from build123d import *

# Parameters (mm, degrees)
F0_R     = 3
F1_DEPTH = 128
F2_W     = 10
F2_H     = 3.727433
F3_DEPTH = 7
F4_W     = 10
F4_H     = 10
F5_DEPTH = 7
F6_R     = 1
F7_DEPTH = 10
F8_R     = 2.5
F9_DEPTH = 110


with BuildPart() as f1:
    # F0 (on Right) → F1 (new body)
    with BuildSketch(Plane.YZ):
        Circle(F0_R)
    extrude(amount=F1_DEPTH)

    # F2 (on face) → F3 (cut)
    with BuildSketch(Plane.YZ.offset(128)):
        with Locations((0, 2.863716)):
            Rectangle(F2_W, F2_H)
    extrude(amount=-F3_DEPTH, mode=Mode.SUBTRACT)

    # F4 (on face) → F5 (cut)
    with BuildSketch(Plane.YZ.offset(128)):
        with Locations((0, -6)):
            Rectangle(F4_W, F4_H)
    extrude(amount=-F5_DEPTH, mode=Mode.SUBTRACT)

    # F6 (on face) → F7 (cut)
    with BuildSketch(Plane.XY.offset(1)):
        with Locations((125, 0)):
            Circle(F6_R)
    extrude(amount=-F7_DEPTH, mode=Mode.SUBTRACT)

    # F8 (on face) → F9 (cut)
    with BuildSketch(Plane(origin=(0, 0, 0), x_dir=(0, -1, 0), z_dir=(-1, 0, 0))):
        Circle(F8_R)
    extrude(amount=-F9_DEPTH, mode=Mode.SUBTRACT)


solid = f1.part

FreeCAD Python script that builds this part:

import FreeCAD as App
import Part
import Sketcher
Q = App.Units.Quantity


def add_polygon(sketch, points):
    """Adds a closed chain of lines whose ends are joined by coincident constraints."""
    first, n = sketch.GeometryCount, len(points)
    for a, b in zip(points, points[1:] + points[:1]):
        sketch.addGeometry(Part.LineSegment(App.Vector(*a, 0), App.Vector(*b, 0)), False)
    for i in range(n):
        sketch.addConstraint(Sketcher.Constraint("Coincident", first + i, 2, first + (i + 1) % n, 1))

doc = App.newDocument("Part")
body = doc.addObject("PartDesign::Body", "Body")

# Sketch on YZ plane
sketch1 = doc.addObject("Sketcher::SketchObject", "Sketch")
body.addObject(sketch1)
sketch1.AttachmentSupport = (doc.YZ_Plane, [""])
sketch1.MapMode = "FlatFace"
sketch1.addGeometry(Part.Circle(App.Vector(0, 0, 0), App.Vector(0, 0, 1), 3), False)
sketch1.addConstraint(Sketcher.Constraint("Coincident", 0, 3, -1, 1))
sketch1.addConstraint(Sketcher.Constraint("Diameter", 0, Q("6 mm")))
pad1 = doc.addObject("PartDesign::Pad", "Pad")
body.addObject(pad1)
pad1.Profile = sketch1
pad1.Length = 128

# Sketch on YZ plane
sketch2 = doc.addObject("Sketcher::SketchObject", "Sketch001")
body.addObject(sketch2)
sketch2.AttachmentSupport = (doc.YZ_Plane, [""])
sketch2.MapMode = "FlatFace"
sketch2.AttachmentOffset = App.Placement(App.Vector(0, 0, 128), App.Rotation())
add_polygon(sketch2, [(-5, 4.7), (-5, 1), (5, 1), (5, 4.7)])  # lines 0-3
sketch2.addConstraint(Sketcher.Constraint("Vertical", 0))
sketch2.addConstraint(Sketcher.Constraint("Horizontal", 1))
sketch2.addConstraint(Sketcher.Constraint("Vertical", 2))
sketch2.addConstraint(Sketcher.Constraint("Horizontal", 3))
sketch2.addConstraint(Sketcher.Constraint("DistanceX", 1, 1, 1, 2, Q("10 mm")))
sketch2.addConstraint(Sketcher.Constraint("DistanceX", 0, 2, -1, 1, Q("5 mm")))
sketch2.addConstraint(Sketcher.Constraint("DistanceY", -1, 1, 0, 2, Q("1 mm")))
sketch2.addConstraint(Sketcher.Constraint("DistanceY", 0, 2, 0, 1, Q("3.727433 mm")))
pocket1 = doc.addObject("PartDesign::Pocket", "Pocket")
body.addObject(pocket1)
pocket1.Profile = sketch2
pocket1.Length = 7

# Sketch on YZ plane
sketch3 = doc.addObject("Sketcher::SketchObject", "Sketch002")
body.addObject(sketch3)
sketch3.AttachmentSupport = (doc.YZ_Plane, [""])
sketch3.MapMode = "FlatFace"
sketch3.AttachmentOffset = App.Placement(App.Vector(0, 0, 128), App.Rotation())
add_polygon(sketch3, [(-5, -1), (-5, -11), (5, -11), (5, -1)])  # lines 0-3
sketch3.addConstraint(Sketcher.Constraint("Vertical", 0))
sketch3.addConstraint(Sketcher.Constraint("Horizontal", 1))
sketch3.addConstraint(Sketcher.Constraint("Vertical", 2))
sketch3.addConstraint(Sketcher.Constraint("Horizontal", 3))
sketch3.addConstraint(Sketcher.Constraint("Equal", 3, 0))
sketch3.addConstraint(Sketcher.Constraint("DistanceX", 1, 1, 1, 2, Q("10 mm")))
sketch3.addConstraint(Sketcher.Constraint("DistanceX", 0, 2, -1, 1, Q("5 mm")))
sketch3.addConstraint(Sketcher.Constraint("DistanceY", 0, 2, -1, 1, Q("11 mm")))
pocket2 = doc.addObject("PartDesign::Pocket", "Pocket001")
body.addObject(pocket2)
pocket2.Profile = sketch3
pocket2.Length = 7

# Sketch on XY plane
sketch4 = doc.addObject("Sketcher::SketchObject", "Sketch003")
body.addObject(sketch4)
sketch4.AttachmentSupport = (doc.XY_Plane, [""])
sketch4.MapMode = "FlatFace"
sketch4.AttachmentOffset = App.Placement(App.Vector(0, 0, 1), App.Rotation())
sketch4.addGeometry(Part.Circle(App.Vector(125, 0, 0), App.Vector(0, 0, 1), 1), False)
sketch4.addConstraint(Sketcher.Constraint("PointOnObject", 0, 3, -1))
sketch4.addConstraint(Sketcher.Constraint("Diameter", 0, Q("2 mm")))
sketch4.addConstraint(Sketcher.Constraint("DistanceX", -1, 1, 0, 3, Q("125 mm")))
pocket3 = doc.addObject("PartDesign::Pocket", "Pocket002")
body.addObject(pocket3)
pocket3.Profile = sketch4
pocket3.Length = 10

# Sketch on YZ plane
sketch5 = doc.addObject("Sketcher::SketchObject", "Sketch004")
body.addObject(sketch5)
sketch5.AttachmentSupport = (doc.YZ_Plane, [""])
sketch5.MapMode = "FlatFace"
sketch5.addGeometry(Part.Circle(App.Vector(0, 0, 0), App.Vector(0, 0, 1), 2.5), False)
sketch5.addConstraint(Sketcher.Constraint("Coincident", 0, 3, -1, 1))
sketch5.addConstraint(Sketcher.Constraint("Diameter", 0, Q("5 mm")))
pocket4 = doc.addObject("PartDesign::Pocket", "Pocket003")
body.addObject(pocket4)
pocket4.Profile = sketch5
pocket4.Length = 110
pocket4.Reversed = True

doc.recompute()
